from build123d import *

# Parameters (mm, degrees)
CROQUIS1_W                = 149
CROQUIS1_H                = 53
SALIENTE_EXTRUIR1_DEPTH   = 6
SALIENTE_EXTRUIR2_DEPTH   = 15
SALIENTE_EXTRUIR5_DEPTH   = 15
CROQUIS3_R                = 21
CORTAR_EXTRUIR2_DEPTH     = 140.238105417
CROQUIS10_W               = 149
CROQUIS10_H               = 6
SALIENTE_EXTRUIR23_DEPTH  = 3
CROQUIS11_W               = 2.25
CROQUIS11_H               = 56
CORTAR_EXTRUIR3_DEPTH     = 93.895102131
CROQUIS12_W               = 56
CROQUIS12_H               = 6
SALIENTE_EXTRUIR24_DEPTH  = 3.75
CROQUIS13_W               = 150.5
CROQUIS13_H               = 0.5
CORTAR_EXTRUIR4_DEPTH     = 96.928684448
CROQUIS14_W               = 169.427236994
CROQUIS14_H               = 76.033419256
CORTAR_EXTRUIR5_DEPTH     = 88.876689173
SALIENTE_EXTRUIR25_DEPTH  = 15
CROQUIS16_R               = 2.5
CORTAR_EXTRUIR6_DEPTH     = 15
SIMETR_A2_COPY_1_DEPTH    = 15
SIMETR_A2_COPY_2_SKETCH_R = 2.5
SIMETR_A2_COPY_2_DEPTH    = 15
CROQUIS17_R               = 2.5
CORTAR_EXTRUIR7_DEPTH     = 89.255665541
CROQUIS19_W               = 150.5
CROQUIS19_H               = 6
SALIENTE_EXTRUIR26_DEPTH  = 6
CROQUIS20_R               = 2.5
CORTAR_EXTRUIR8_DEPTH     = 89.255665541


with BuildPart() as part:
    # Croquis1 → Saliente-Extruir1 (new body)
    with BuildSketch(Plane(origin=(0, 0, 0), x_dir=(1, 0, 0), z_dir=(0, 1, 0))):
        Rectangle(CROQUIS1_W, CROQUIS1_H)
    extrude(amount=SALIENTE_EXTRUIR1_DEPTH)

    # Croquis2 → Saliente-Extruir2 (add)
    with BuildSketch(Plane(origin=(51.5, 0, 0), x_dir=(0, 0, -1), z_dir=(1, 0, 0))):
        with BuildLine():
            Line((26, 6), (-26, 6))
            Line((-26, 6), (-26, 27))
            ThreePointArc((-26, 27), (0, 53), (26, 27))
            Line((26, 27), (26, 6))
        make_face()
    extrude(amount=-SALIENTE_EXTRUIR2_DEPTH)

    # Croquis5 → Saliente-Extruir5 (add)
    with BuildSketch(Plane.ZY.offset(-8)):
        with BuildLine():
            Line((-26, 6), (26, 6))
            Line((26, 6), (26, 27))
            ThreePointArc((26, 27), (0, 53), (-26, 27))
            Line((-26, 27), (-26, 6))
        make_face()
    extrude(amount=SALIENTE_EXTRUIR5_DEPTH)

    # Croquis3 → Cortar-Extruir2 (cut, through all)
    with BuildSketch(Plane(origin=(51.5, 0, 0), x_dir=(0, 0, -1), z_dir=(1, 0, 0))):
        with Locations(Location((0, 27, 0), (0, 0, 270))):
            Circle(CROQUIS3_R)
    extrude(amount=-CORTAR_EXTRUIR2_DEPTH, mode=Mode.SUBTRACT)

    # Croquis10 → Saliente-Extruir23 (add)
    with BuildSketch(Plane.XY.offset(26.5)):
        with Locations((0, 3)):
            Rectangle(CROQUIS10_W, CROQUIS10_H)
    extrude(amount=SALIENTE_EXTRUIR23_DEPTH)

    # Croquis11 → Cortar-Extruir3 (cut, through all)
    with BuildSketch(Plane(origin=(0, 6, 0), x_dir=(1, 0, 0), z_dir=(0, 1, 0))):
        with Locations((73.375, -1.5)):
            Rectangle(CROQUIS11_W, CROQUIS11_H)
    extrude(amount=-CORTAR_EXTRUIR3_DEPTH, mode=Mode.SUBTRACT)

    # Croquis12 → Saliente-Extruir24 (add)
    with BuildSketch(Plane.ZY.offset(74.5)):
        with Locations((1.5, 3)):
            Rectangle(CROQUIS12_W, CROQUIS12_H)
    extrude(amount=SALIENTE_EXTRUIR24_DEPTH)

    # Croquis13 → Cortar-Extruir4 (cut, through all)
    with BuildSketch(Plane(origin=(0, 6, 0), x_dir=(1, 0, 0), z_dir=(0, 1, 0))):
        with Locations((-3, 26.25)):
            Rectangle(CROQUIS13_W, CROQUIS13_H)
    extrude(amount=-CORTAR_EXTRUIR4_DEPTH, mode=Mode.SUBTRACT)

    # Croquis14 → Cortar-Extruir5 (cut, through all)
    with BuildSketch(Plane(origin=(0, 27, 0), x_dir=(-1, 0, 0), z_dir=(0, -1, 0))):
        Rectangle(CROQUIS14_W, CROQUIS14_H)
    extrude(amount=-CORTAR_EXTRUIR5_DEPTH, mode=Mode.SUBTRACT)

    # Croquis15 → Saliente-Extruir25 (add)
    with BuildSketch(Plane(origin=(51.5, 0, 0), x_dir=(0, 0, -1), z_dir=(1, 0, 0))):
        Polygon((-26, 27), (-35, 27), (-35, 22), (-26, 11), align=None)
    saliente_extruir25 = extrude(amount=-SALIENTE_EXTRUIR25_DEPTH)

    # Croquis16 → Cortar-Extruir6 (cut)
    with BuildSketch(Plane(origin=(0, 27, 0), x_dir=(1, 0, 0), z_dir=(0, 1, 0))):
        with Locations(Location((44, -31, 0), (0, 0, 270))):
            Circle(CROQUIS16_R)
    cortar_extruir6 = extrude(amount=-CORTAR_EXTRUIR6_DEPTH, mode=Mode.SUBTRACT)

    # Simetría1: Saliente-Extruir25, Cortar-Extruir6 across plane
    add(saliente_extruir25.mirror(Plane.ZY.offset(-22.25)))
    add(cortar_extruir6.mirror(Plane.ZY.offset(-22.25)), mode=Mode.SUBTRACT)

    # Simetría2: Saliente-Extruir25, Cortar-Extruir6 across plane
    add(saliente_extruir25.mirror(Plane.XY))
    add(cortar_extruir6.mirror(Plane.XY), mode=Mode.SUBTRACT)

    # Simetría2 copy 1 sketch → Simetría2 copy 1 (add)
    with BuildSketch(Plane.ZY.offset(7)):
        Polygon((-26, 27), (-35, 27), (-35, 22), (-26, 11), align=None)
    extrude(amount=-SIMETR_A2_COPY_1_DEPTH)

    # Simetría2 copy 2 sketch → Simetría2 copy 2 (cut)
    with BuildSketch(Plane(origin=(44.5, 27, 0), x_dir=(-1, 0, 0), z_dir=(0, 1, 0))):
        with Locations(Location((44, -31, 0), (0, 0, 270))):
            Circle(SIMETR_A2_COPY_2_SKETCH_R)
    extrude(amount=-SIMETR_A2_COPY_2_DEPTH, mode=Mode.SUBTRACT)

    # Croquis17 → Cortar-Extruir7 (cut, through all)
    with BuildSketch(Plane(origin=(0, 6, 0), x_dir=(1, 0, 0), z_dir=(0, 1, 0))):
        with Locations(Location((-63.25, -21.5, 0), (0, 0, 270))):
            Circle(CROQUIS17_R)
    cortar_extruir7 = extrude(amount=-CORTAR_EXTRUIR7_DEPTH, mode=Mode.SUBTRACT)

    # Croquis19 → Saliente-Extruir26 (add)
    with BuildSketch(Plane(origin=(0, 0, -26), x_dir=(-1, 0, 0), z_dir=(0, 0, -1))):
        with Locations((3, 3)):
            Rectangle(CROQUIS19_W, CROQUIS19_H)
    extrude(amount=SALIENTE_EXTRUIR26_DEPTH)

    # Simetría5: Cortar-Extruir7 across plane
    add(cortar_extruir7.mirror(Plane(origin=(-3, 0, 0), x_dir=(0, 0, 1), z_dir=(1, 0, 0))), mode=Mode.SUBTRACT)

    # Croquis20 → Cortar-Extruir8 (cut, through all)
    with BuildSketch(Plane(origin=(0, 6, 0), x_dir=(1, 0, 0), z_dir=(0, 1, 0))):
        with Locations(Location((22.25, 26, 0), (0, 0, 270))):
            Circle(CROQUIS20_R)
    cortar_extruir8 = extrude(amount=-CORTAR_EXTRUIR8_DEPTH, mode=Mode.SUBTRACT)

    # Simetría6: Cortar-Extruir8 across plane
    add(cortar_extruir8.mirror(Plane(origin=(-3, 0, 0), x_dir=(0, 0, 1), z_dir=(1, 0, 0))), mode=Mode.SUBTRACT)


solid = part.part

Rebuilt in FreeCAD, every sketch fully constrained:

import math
import FreeCAD as App
import Part
import Sketcher
from FreeCAD import Vector
Q = App.Units.Quantity

doc = App.newDocument("Part")
params = doc.addObject("Spreadsheet::Sheet", "Params")
for row, (alias, value) in enumerate([
    ("sketch1_width", "149 mm"),
    ("sketch1_height", "53 mm"),
    ("pad1_length", "6 mm"),
    ("sketch2_radius", "26 mm"),
    ("sketch2_width", "21 mm"),
    ("pad2_length", "15 mm"),
    ("sketch3_radius", "26 mm"),
    ("sketch3_width", "21 mm"),
    ("pad3_length", "15 mm"),
    ("sketch4_diameter", "42 mm"),
    ("sketch5_width", "149 mm"),
    ("sketch5_height", "6 mm"),
    ("pad4_length", "3 mm"),
    ("sketch6_height", "56 mm"),
    ("sketch6_width", "2.25 mm"),
    ("sketch7_width", "6 mm"),
    ("sketch7_height", "56 mm"),
    ("pad5_length", "3.75 mm"),
    ("sketch8_width", "150.5 mm"),
    ("sketch8_height", "0.5 mm"),
    ("sketch10_width", "5 mm"),
    ("sketch10_width2", "16 mm"),
    ("sketch10_height", "9 mm"),
    ("pad6_length", "15 mm"),
    ("sketch11_diameter", "5 mm"),
    ("pocket5_length", "15 mm"),
    ("sketch12_width", "5 mm"),
    ("sketch12_width2", "16 mm"),
    ("sketch12_height", "9 mm"),
    ("pad7_length", "15 mm"),
    ("sketch13_diameter", "5 mm"),
    ("pocket6_length", "15 mm"),
    ("sketch14_diameter", "5 mm"),
    ("sketch15_height", "6 mm"),
    ("sketch15_width", "150.5 mm"),
    ("pad8_length", "6 mm"),
    ("sketch16_diameter", "5 mm"),
], start=1):
    params.set(f"A{row}", alias)
    params.set(f"B{row}", "=" + value)
    params.setAlias(f"B{row}", alias)

body = doc.addObject("PartDesign::Body", "Body")

# Sketch on XZ plane
sketch1 = doc.addObject("Sketcher::SketchObject", "Sketch")
body.addObject(sketch1)
sketch1.AttachmentSupport = (doc.XZ_Plane, [""])
sketch1.MapMode = "FlatFace"
sketch1.addGeometry(Part.LineSegment(Vector(-74, -26, 0), Vector(-74, 26, 0)), False)
sketch1.addGeometry(Part.LineSegment(Vector(-74, 26, 0), Vector(74, 26, 0)), False)
sketch1.addGeometry(Part.LineSegment(Vector(74, 26, 0), Vector(74, -26, 0)), False)
sketch1.addGeometry(Part.LineSegment(Vector(74, -26, 0), Vector(-74, -26, 0)), False)
sketch1.addConstraint(Sketcher.Constraint("Coincident", 0, 2, 1, 1))
sketch1.addConstraint(Sketcher.Constraint("Coincident", 1, 2, 2, 1))
sketch1.addConstraint(Sketcher.Constraint("Coincident", 2, 2, 3, 1))
sketch1.addConstraint(Sketcher.Constraint("Coincident", 3, 2, 0, 1))
sketch1.addConstraint(Sketcher.Constraint("Vertical", 0))
sketch1.addConstraint(Sketcher.Constraint("Horizontal", 1))
sketch1.addConstraint(Sketcher.Constraint("Vertical", 2))
sketch1.addConstraint(Sketcher.Constraint("Horizontal", 3))
sketch1.addConstraint(Sketcher.Constraint("Symmetric", 0, 2, 2, 2, -1, 1))
sketch1.addConstraint(Sketcher.Constraint("DistanceX", 1, 1, 1, 2, Q("149 mm")))
sketch1.addConstraint(Sketcher.Constraint("DistanceY", 0, 1, 0, 2, Q("53 mm")))
sketch1.setExpression("Constraints[9]", "Params.sketch1_width")
sketch1.setExpression("Constraints[10]", "Params.sketch1_height")
pad1 = doc.addObject("PartDesign::Pad", "Pad")
body.addObject(pad1)
pad1.Profile = sketch1
pad1.setExpression("Length", "Params.pad1_length")
pad1.Reversed = True

# Sketch on YZ plane
sketch2 = doc.addObject("Sketcher::SketchObject", "Sketch001")
body.addObject(sketch2)
sketch2.AttachmentSupport = (doc.YZ_Plane, [""])
sketch2.MapMode = "FlatFace"
sketch2.AttachmentOffset = App.Placement(Vector(0, 0, 51.5), App.Rotation())
sketch2.addGeometry(Part.LineSegment(Vector(6, 26, 0), Vector(6, -26, 0)), False)
sketch2.addGeometry(Part.LineSegment(Vector(6, -26, 0), Vector(27, -26, 0)), False)
sketch2.addGeometry(Part.ArcOfCircle(Part.Circle(Vector(27, 0, 0), Vector(0, 0, 1), 26), math.radians(-90), math.radians(90)), False)
sketch2.addGeometry(Part.LineSegment(Vector(27, 26, 0), Vector(6, 26, 0)), False)
sketch2.addConstraint(Sketcher.Constraint("Coincident", 0, 2, 1, 1))
sketch2.addConstraint(Sketcher.Constraint("Tangent", 1, 2, 2, 1))
sketch2.addConstraint(Sketcher.Constraint("Tangent", 2, 2, 3, 1))
sketch2.addConstraint(Sketcher.Constraint("Coincident", 3, 2, 0, 1))
sketch2.addConstraint(Sketcher.Constraint("Vertical", 0))
sketch2.addConstraint(Sketcher.Constraint("Horizontal", 1))
sketch2.addConstraint(Sketcher.Constraint("Horizontal", 3))
sketch2.addConstraint(Sketcher.Constraint("PointOnObject", 2, 3, -1))
sketch2.addConstraint(Sketcher.Constraint("Radius", 2, Q("26 mm")))
sketch2.addConstraint(Sketcher.Constraint("DistanceX", 1, 1, 1, 2, Q("21 mm")))
sketch2.addConstraint(Sketcher.Constraint("DistanceX", -1, 1, 2, 3, Q("27 mm")))
sketch2.setExpression("Constraints[8]", "Params.sketch2_radius")
sketch2.setExpression("Constraints[9]", "Params.sketch2_width")
pad2 = doc.addObject("PartDesign::Pad", "Pad001")
body.addObject(pad2)
pad2.Profile = sketch2
pad2.setExpression("Length", "Params.pad2_length")
pad2.Reversed = True

# Sketch on YZ plane
sketch3 = doc.addObject("Sketcher::SketchObject", "Sketch002")
body.addObject(sketch3)
sketch3.AttachmentSupport = (doc.YZ_Plane, [""])
sketch3.MapMode = "FlatFace"
sketch3.AttachmentOffset = App.Placement(Vector(0, 0, 8), App.Rotation())
sketch3.addGeometry(Part.LineSegment(Vector(6, -26, 0), Vector(6, 26, 0)), False)
sketch3.addGeometry(Part.LineSegment(Vector(6, 26, 0), Vector(27, 26, 0)), False)
sketch3.addGeometry(Part.ArcOfCircle(Part.Circle(Vector(27, 0, 0), Vector(0, 0, 1), 26), math.radians(-90), math.radians(90)), False)
sketch3.addGeometry(Part.LineSegment(Vector(27, -26, 0), Vector(6, -26, 0)), False)
sketch3.addConstraint(Sketcher.Constraint("Coincident", 0, 2, 1, 1))
sketch3.addConstraint(Sketcher.Constraint("Tangent", 1, 2, 2, 2))
sketch3.addConstraint(Sketcher.Constraint("Tangent", 2, 1, 3, 1))
sketch3.addConstraint(Sketcher.Constraint("Coincident", 3, 2, 0, 1))
sketch3.addConstraint(Sketcher.Constraint("Vertical", 0))
sketch3.addConstraint(Sketcher.Constraint("Horizontal", 1))
sketch3.addConstraint(Sketcher.Constraint("Horizontal", 3))
sketch3.addConstraint(Sketcher.Constraint("PointOnObject", 2, 3, -1))
sketch3.addConstraint(Sketcher.Constraint("Radius", 2, Q("26 mm")))
sketch3.addConstraint(Sketcher.Constraint("DistanceX", 1, 1, 1, 2, Q("21 mm")))
sketch3.addConstraint(Sketcher.Constraint("DistanceX", -1, 1, 2, 3, Q("27 mm")))
sketch3.setExpression("Constraints[8]", "Params.sketch3_radius")
sketch3.setExpression("Constraints[9]", "Params.sketch3_width")
pad3 = doc.addObject("PartDesign::Pad", "Pad002")
body.addObject(pad3)
pad3.Profile = sketch3
pad3.setExpression("Length", "Params.pad3_length")
pad3.Reversed = True

# Sketch on YZ plane
sketch4 = doc.addObject("Sketcher::SketchObject", "Sketch003")
body.addObject(sketch4)
sketch4.AttachmentSupport = (doc.YZ_Plane, [""])
sketch4.MapMode = "FlatFace"
sketch4.AttachmentOffset = App.Placement(Vector(0, 0, 51.5), App.Rotation())
sketch4.addGeometry(Part.Circle(Vector(27, 0, 0), Vector(0, 0, 1), 21), False)
sketch4.addConstraint(Sketcher.Constraint("PointOnObject", 0, 3, -1))
sketch4.addConstraint(Sketcher.Constraint("Diameter", 0, Q("42 mm")))
sketch4.addConstraint(Sketcher.Constraint("DistanceX", -1, 1, 0, 3, Q("27 mm")))
sketch4.setExpression("Constraints[1]", "Params.sketch4_diameter")
pocket1 = doc.addObject("PartDesign::Pocket", "Pocket")
body.addObject(pocket1)
pocket1.Profile = sketch4
pocket1.Type = "ThroughAll"

# Sketch on XY plane
sketch5 = doc.addObject("Sketcher::SketchObject", "Sketch004")
body.addObject(sketch5)
sketch5.AttachmentSupport = (doc.XY_Plane, [""])
sketch5.MapMode = "FlatFace"
sketch5.AttachmentOffset = App.Placement(Vector(0, 0, 26.5), App.Rotation())
sketch5.addGeometry(Part.LineSegment(Vector(-74, 6, 0), Vector(-74, 0, 0)), False)
sketch5.addGeometry(Part.LineSegment(Vector(-74, 0, 0), Vector(74, 0, 0)), False)
sketch5.addGeometry(Part.LineSegment(Vector(74, 0, 0), Vector(74, 6, 0)), False)
sketch5.addGeometry(Part.LineSegment(Vector(74, 6, 0), Vector(-74, 6, 0)), False)
sketch5.addConstraint(Sketcher.Constraint("Coincident", 0, 2, 1, 1))
sketch5.addConstraint(Sketcher.Constraint("Coincident", 1, 2, 2, 1))
sketch5.addConstraint(Sketcher.Constraint("Coincident", 2, 2, 3, 1))
sketch5.addConstraint(Sketcher.Constraint("Coincident", 3, 2, 0, 1))
sketch5.addConstraint(Sketcher.Constraint("Vertical", 0))
sketch5.addConstraint(Sketcher.Constraint("Horizontal", 1))
sketch5.addConstraint(Sketcher.Constraint("Vertical", 2))
sketch5.addConstraint(Sketcher.Constraint("Horizontal", 3))
sketch5.addConstraint(Sketcher.Constraint("Symmetric", 0, 2, 1, 2, -1, 1))
sketch5.addConstraint(Sketcher.Constraint("DistanceX", 1, 1, 1, 2, Q("149 mm")))
sketch5.addConstraint(Sketcher.Constraint("DistanceY", 0, 2, 0, 1, Q("6 mm")))
sketch5.setExpression("Constraints[9]", "Params.sketch5_width")
sketch5.setExpression("Constraints[10]", "Params.sketch5_height")
pad4 = doc.addObject("PartDesign::Pad", "Pad003")
body.addObject(pad4)
pad4.Profile = sketch5
pad4.setExpression("Length", "Params.pad4_length")

# Sketch on XZ plane
sketch6 = doc.addObject("Sketcher::SketchObject", "Sketch005")
body.addObject(sketch6)
sketch6.AttachmentSupport = (doc.XZ_Plane, [""])
sketch6.MapMode = "FlatFace"
sketch6.AttachmentOffset = App.Placement(Vector(0, 0, -6), App.Rotation())
sketch6.addGeometry(Part.LineSegment(Vector(72.2, -26.5, 0), Vector(72.2, 29.5, 0)), False)
sketch6.addGeometry(Part.LineSegment(Vector(72.2, 29.5, 0), Vector(74.5, 29.5, 0)), False)
sketch6.addGeometry(Part.LineSegment(Vector(74.5, 29.5, 0), Vector(74.5, -26.5, 0)), False)
sketch6.addGeometry(Part.LineSegment(Vector(74.5, -26.5, 0), Vector(72.2, -26.5, 0)), False)
sketch6.addConstraint(Sketcher.Constraint("Coincident", 0, 2, 1, 1))
sketch6.addConstraint(Sketcher.Constraint("Coincident", 1, 2, 2, 1))
sketch6.addConstraint(Sketcher.Constraint("Coincident", 2, 2, 3, 1))
sketch6.addConstraint(Sketcher.Constraint("Coincident", 3, 2, 0, 1))
sketch6.addConstraint(Sketcher.Constraint("Vertical", 0))
sketch6.addConstraint(Sketcher.Constraint("Horizontal", 1))
sketch6.addConstraint(Sketcher.Constraint("Vertical", 2))
sketch6.addConstraint(Sketcher.Constraint("Horizontal", 3))
sketch6.addConstraint(Sketcher.Constraint("DistanceY", 0, 1, 0, 2, Q("56 mm")))
sketch6.addConstraint(Sketcher.Constraint("DistanceX", 1, 1, 1, 2, Q("2.25 mm")))
sketch6.addConstraint(Sketcher.Constraint("DistanceY", -1, 1, 0, 2, Q("29.5 mm")))
sketch6.addConstraint(Sketcher.Constraint("DistanceX", -1, 1, 1, 2, Q("74.5 mm")))
sketch6.setExpression("Constraints[8]", "Params.sketch6_height")
sketch6.setExpression("Constraints[9]", "Params.sketch6_width")
pocket2 = doc.addObject("PartDesign::Pocket", "Pocket001")
body.addObject(pocket2)
pocket2.Profile = sketch6
pocket2.Type = "ThroughAll"
pocket2.Reversed = True

# Sketch on YZ plane
sketch7 = doc.addObject("Sketcher::SketchObject", "Sketch006")
body.addObject(sketch7)
sketch7.AttachmentSupport = (doc.YZ_Plane, [""])
sketch7.MapMode = "FlatFace"
sketch7.AttachmentOffset = App.Placement(Vector(0, 0, -74.5), App.Rotation())
sketch7.addGeometry(Part.LineSegment(Vector(6, -26, 0), Vector(0, -26, 0)), False)
sketch7.addGeometry(Part.LineSegment(Vector(0, -26, 0), Vector(0, 30, 0)), False)
sketch7.addGeometry(Part.LineSegment(Vector(0, 30, 0), Vector(6, 30, 0)), False)
sketch7.addGeometry(Part.LineSegment(Vector(6, 30, 0), Vector(6, -26, 0)), False)
sketch7.addConstraint(Sketcher.Constraint("Coincident", 0, 2, 1, 1))
sketch7.addConstraint(Sketcher.Constraint("Coincident", 1, 2, 2, 1))
sketch7.addConstraint(Sketcher.Constraint("Coincident", 2, 2, 3, 1))
sketch7.addConstraint(Sketcher.Constraint("Coincident", 3, 2, 0, 1))
sketch7.addConstraint(Sketcher.Constraint("Horizontal", 0))
sketch7.addConstraint(Sketcher.Constraint("Vertical", 1))
sketch7.addConstraint(Sketcher.Constraint("Horizontal", 2))
sketch7.addConstraint(Sketcher.Constraint("Vertical", 3))
sketch7.addConstraint(Sketcher.Constraint("PointOnObject", 0, 2, -2))
sketch7.addConstraint(Sketcher.Constraint("DistanceX", 0, 2, 0, 1, Q("6 mm")))
sketch7.addConstraint(Sketcher.Constraint("DistanceY", 1, 1, 1, 2, Q("56 mm")))
sketch7.addConstraint(Sketcher.Constraint("DistanceY", 0, 2, -1, 1, Q("26.5 mm")))
sketch7.setExpression("Constraints[9]", "Params.sketch7_width")
sketch7.setExpression("Constraints[10]", "Params.sketch7_height")
pad5 = doc.addObject("PartDesign::Pad", "Pad004")
body.addObject(pad5)
pad5.Profile = sketch7
pad5.setExpression("Length", "Params.pad5_length")
pad5.Reversed = True

# Sketch on XZ plane
sketch8 = doc.addObject("Sketcher::SketchObject", "Sketch007")
body.addObject(sketch8)
sketch8.AttachmentSupport = (doc.XZ_Plane, [""])
sketch8.MapMode = "FlatFace"
sketch8.AttachmentOffset = App.Placement(Vector(0, 0, -6), App.Rotation())
sketch8.addGeometry(Part.LineSegment(Vector(-78.2, -26.5, 0), Vector(-78.2, -26, 0)), False)
sketch8.addGeometry(Part.LineSegment(Vector(-78.2, -26, 0), Vector(72.2, -26, 0)), False)
sketch8.addGeometry(Part.LineSegment(Vector(72.2, -26, 0), Vector(72.2, -26.5, 0)), False)
sketch8.addGeometry(Part.LineSegment(Vector(72.2, -26.5, 0), Vector(-78.2, -26.5, 0)), False)
sketch8.addConstraint(Sketcher.Constraint("Coincident", 0, 2, 1, 1))
sketch8.addConstraint(Sketcher.Constraint("Coincident", 1, 2, 2, 1))
sketch8.addConstraint(Sketcher.Constraint("Coincident", 2, 2, 3, 1))
sketch8.addConstraint(Sketcher.Constraint("Coincident", 3, 2, 0, 1))
sketch8.addConstraint(Sketcher.Constraint("Vertical", 0))
sketch8.addConstraint(Sketcher.Constraint("Horizontal", 1))
sketch8.addConstraint(Sketcher.Constraint("Vertical", 2))
sketch8.addConstraint(Sketcher.Constraint("Horizontal", 3))
sketch8.addConstraint(Sketcher.Constraint("DistanceX", 1, 1, 1, 2, Q("150.5 mm")))
sketch8.addConstraint(Sketcher.Constraint("DistanceY", 0, 1, 0, 2, Q("0.5 mm")))
sketch8.addConstraint(Sketcher.Constraint("DistanceY", 0, 2, -1, 1, Q("26 mm")))
sketch8.addConstraint(Sketcher.Constraint("DistanceX", 0, 2, -1, 1, Q("78.25 mm")))
sketch8.setExpression("Constraints[8]", "Params.sketch8_width")
sketch8.setExpression("Constraints[9]", "Params.sketch8_height")
pocket3 = doc.addObject("PartDesign::Pocket", "Pocket002")
body.addObject(pocket3)
pocket3.Profile = sketch8
pocket3.Type = "ThroughAll"
pocket3.Reversed = True

# Sketch on XZ plane
sketch9 = doc.addObject("Sketcher::SketchObject", "Sketch008")
body.addObject(sketch9)
sketch9.AttachmentSupport = (doc.XZ_Plane, [""])
sketch9.MapMode = "FlatFace"
sketch9.AttachmentOffset = App.Placement(Vector(0, 0, -27), App.Rotation())
sketch9.addGeometry(Part.LineSegment(Vector(85, -38, 0), Vector(85, 38, 0)), False)
sketch9.addGeometry(Part.LineSegment(Vector(85, 38, 0), Vector(-85, 38, 0)), False)
sketch9.addGeometry(Part.LineSegment(Vector(-85, 38, 0), Vector(-85, -38, 0)), False)
sketch9.addGeometry(Part.LineSegment(Vector(-85, -38, 0), Vector(85, -38, 0)), False)
sketch9.addConstraint(Sketcher.Constraint("Coincident", 0, 2, 1, 1))
sketch9.addConstraint(Sketcher.Constraint("Coincident", 1, 2, 2, 1))
sketch9.addConstraint(Sketcher.Constraint("Coincident", 2, 2, 3, 1))
sketch9.addConstraint(Sketcher.Constraint("Coincident", 3, 2, 0, 1))
sketch9.addConstraint(Sketcher.Constraint("Vertical", 0))
sketch9.addConstraint(Sketcher.Constraint("Horizontal", 1))
sketch9.addConstraint(Sketcher.Constraint("Vertical", 2))
sketch9.addConstraint(Sketcher.Constraint("Horizontal", 3))
sketch9.addConstraint(Sketcher.Constraint("Symmetric", 0, 2, 2, 2, -1, 1))
sketch9.addConstraint(Sketcher.Constraint("DistanceY", 0, 1, 0, 2, Q("76.033419 mm")))
sketch9.addConstraint(Sketcher.Constraint("DistanceX", 1, 2, 1, 1, Q("169.427237 mm")))
pocket4 = doc.addObject("PartDesign::Pocket", "Pocket003")
body.addObject(pocket4)
pocket4.Profile = sketch9
pocket4.Type = "ThroughAll"

# Sketch on YZ plane
sketch10 = doc.addObject("Sketcher::SketchObject", "Sketch009")
body.addObject(sketch10)
sketch10.AttachmentSupport = (doc.YZ_Plane, [""])
sketch10.MapMode = "FlatFace"
sketch10.AttachmentOffset = App.Placement(Vector(0, 0, 51.5), App.Rotation())
sketch10.addGeometry(Part.LineSegment(Vector(27, 26, 0), Vector(27, 35, 0)), False)
sketch10.addGeometry(Part.LineSegment(Vector(27, 35, 0), Vector(22, 35, 0)), False)
sketch10.addGeometry(Part.LineSegment(Vector(22, 35, 0), Vector(11, 26, 0)), False)
sketch10.addGeometry(Part.LineSegment(Vector(11, 26, 0), Vector(27, 26, 0)), False)
sketch10.addConstraint(Sketcher.Constraint("Coincident", 0, 2, 1, 1))
sketch10.addConstraint(Sketcher.Constraint("Coincident", 1, 2, 2, 1))
sketch10.addConstraint(Sketcher.Constraint("Coincident", 2, 2, 3, 1))
sketch10.addConstraint(Sketcher.Constraint("Coincident", 3, 2, 0, 1))
sketch10.addConstraint(Sketcher.Constraint("Vertical", 0))
sketch10.addConstraint(Sketcher.Constraint("Horizontal", 1))
sketch10.addConstraint(Sketcher.Constraint("Horizontal", 3))
sketch10.addConstraint(Sketcher.Constraint("DistanceX", 1, 2, 1, 1, Q("5 mm")))
sketch10.addConstraint(Sketcher.Constraint("DistanceX", 3, 1, 3, 2, Q("16 mm")))
sketch10.addConstraint(Sketcher.Constraint("DistanceY", 0, 1, 0, 2, Q("9 mm")))
sketch10.addConstraint(Sketcher.Constraint("DistanceX", -1, 1, 0, 2, Q("27 mm")))
sketch10.addConstraint(Sketcher.Constraint("DistanceY", -1, 1, 0, 2, Q("35 mm")))
sketch10.setExpression("Constraints[7]", "Params.sketch10_width")
sketch10.setExpression("Constraints[8]", "Params.sketch10_width2")
sketch10.setExpression("Constraints[9]", "Params.sketch10_height")
pad6 = doc.addObject("PartDesign::Pad", "Pad005")
body.addObject(pad6)
pad6.Profile = sketch10
pad6.setExpression("Length", "Params.pad6_length")
pad6.Reversed = True

# Sketch on XZ plane
sketch11 = doc.addObject("Sketcher::SketchObject", "Sketch010")
body.addObject(sketch11)
sketch11.AttachmentSupport = (doc.XZ_Plane, [""])
sketch11.MapMode = "FlatFace"
sketch11.AttachmentOffset = App.Placement(Vector(0, 0, -27), App.Rotation())
sketch11.addGeometry(Part.Circle(Vector(44, 31, 0), Vector(0, 0, 1), 2.5), False)
sketch11.addConstraint(Sketcher.Constraint("Diameter", 0, Q("5 mm")))
sketch11.addConstraint(Sketcher.Constraint("DistanceX", -1, 1, 0, 3, Q("44 mm")))
sketch11.addConstraint(Sketcher.Constraint("DistanceY", -1, 1, 0, 3, Q("31 mm")))
sketch11.setExpression("Constraints[0]", "Params.sketch11_diameter")
pocket5 = doc.addObject("PartDesign::Pocket", "Pocket004")
body.addObject(pocket5)
pocket5.Profile = sketch11
pocket5.setExpression("Length", "Params.pocket5_length")
pocket5.Reversed = True
doc.recompute()

datumplane = doc.addObject("PartDesign::Plane", "DatumPlane")
body.addObject(datumplane)
datumplane.AttachmentSupport = (doc.YZ_Plane, [""])
datumplane.MapMode = "FlatFace"
datumplane.AttachmentOffset = App.Placement(Vector(0, 0, 22.25), App.Rotation())
mirrored = doc.addObject("PartDesign::Mirrored", "Mirrored")
body.addObject(mirrored)
mirrored.Originals = [pad6, pocket5]
mirrored.MirrorPlane = (datumplane, [""])
body.Tip = mirrored
doc.recompute()

mirrored2 = doc.addObject("PartDesign::Mirrored", "Mirrored001")
body.addObject(mirrored2)
mirrored2.Originals = [pad6, pocket5]
mirrored2.MirrorPlane = (doc.XY_Plane, [""])
body.Tip = mirrored2

# Sketch on YZ plane
sketch12 = doc.addObject("Sketcher::SketchObject", "Sketch011")
body.addObject(sketch12)
sketch12.AttachmentSupport = (doc.YZ_Plane, [""])
sketch12.MapMode = "FlatFace"
sketch12.AttachmentOffset = App.Placement(Vector(0, 0, -7), App.Rotation())
sketch12.addGeometry(Part.LineSegment(Vector(27, -26, 0), Vector(27, -35, 0)), False)
sketch12.addGeometry(Part.LineSegment(Vector(27, -35, 0), Vector(22, -35, 0)), False)
sketch12.addGeometry(Part.LineSegment(Vector(22, -35, 0), Vector(11, -26, 0)), False)
sketch12.addGeometry(Part.LineSegment(Vector(11, -26, 0), Vector(27, -26, 0)), False)
sketch12.addConstraint(Sketcher.Constraint("Coincident", 0, 2, 1, 1))
sketch12.addConstraint(Sketcher.Constraint("Coincident", 1, 2, 2, 1))
sketch12.addConstraint(Sketcher.Constraint("Coincident", 2, 2, 3, 1))
sketch12.addConstraint(Sketcher.Constraint("Coincident", 3, 2, 0, 1))
sketch12.addConstraint(Sketcher.Constraint("Vertical", 0))
sketch12.addConstraint(Sketcher.Constraint("Horizontal", 1))
sketch12.addConstraint(Sketcher.Constraint("Horizontal", 3))
sketch12.addConstraint(Sketcher.Constraint("DistanceX", 1, 2, 1, 1, Q("5 mm")))
sketch12.addConstraint(Sketcher.Constraint("DistanceX", 3, 1, 3, 2, Q("16 mm")))
sketch12.addConstraint(Sketcher.Constraint("DistanceY", 0, 2, 0, 1, Q("9 mm")))
sketch12.addConstraint(Sketcher.Constraint("DistanceX", -1, 1, 0, 2, Q("27 mm")))
sketch12.addConstraint(Sketcher.Constraint("DistanceY", 0, 2, -1, 1, Q("35 mm")))
sketch12.setExpression("Constraints[7]", "Params.sketch12_width")
sketch12.setExpression("Constraints[8]", "Params.sketch12_width2")
sketch12.setExpression("Constraints[9]", "Params.sketch12_height")
pad7 = doc.addObject("PartDesign::Pad", "Pad006")
body.addObject(pad7)
pad7.Profile = sketch12
pad7.setExpression("Length", "Params.pad7_length")

# Sketch on XZ plane
sketch13 = doc.addObject("Sketcher::SketchObject", "Sketch012")
body.addObject(sketch13)
sketch13.AttachmentSupport = (doc.XZ_Plane, [""])
sketch13.MapMode = "FlatFace"
sketch13.AttachmentOffset = App.Placement(Vector(0, 0, -27), App.Rotation())
sketch13.addGeometry(Part.Circle(Vector(0.5, -31, 0), Vector(0, 0, 1), 2.5), False)
sketch13.addConstraint(Sketcher.Constraint("Diameter", 0, Q("5 mm")))
sketch13.addConstraint(Sketcher.Constraint("DistanceY", 0, 3, -1, 1, Q("31 mm")))
sketch13.addConstraint(Sketcher.Constraint("DistanceX", -1, 1, 0, 3, Q("0.5 mm")))
sketch13.setExpression("Constraints[0]", "Params.sketch13_diameter")
pocket6 = doc.addObject("PartDesign::Pocket", "Pocket005")
body.addObject(pocket6)
pocket6.Profile = sketch13
pocket6.setExpression("Length", "Params.pocket6_length")
pocket6.Reversed = True

# Sketch on XZ plane
sketch14 = doc.addObject("Sketcher::SketchObject", "Sketch013")
body.addObject(sketch14)
sketch14.AttachmentSupport = (doc.XZ_Plane, [""])
sketch14.MapMode = "FlatFace"
sketch14.AttachmentOffset = App.Placement(Vector(0, 0, -6), App.Rotation())
sketch14.addGeometry(Part.Circle(Vector(-63.2, 21.5, 0), Vector(0, 0, 1), 2.5), False)
sketch14.addConstraint(Sketcher.Constraint("Diameter", 0, Q("5 mm")))
sketch14.addConstraint(Sketcher.Constraint("DistanceY", -1, 1, 0, 3, Q("21.5 mm")))
sketch14.addConstraint(Sketcher.Constraint("DistanceX", 0, 3, -1, 1, Q("63.25 mm")))
sketch14.setExpression("Constraints[0]", "Params.sketch14_diameter")
pocket7 = doc.addObject("PartDesign::Pocket", "Pocket006")
body.addObject(pocket7)
pocket7.Profile = sketch14
pocket7.Type = "ThroughAll"
pocket7.Reversed = True

# Sketch on XY plane
sketch15 = doc.addObject("Sketcher::SketchObject", "Sketch014")
body.addObject(sketch15)
sketch15.AttachmentSupport = (doc.XY_Plane, [""])
sketch15.MapMode = "FlatFace"
sketch15.AttachmentOffset = App.Placement(Vector(0, 0, -26), App.Rotation())
sketch15.addGeometry(Part.LineSegment(Vector(72, 6, 0), Vector(72, 0, 0)), False)
sketch15.addGeometry(Part.LineSegment(Vector(72, 0, 0), Vector(-78, 0, 0)), False)
sketch15.addGeometry(Part.LineSegment(Vector(-78, 0, 0), Vector(-78, 6, 0)), False)
sketch15.addGeometry(Part.LineSegment(Vector(-78, 6, 0), Vector(72, 6, 0)), False)
sketch15.addConstraint(Sketcher.Constraint("Coincident", 0, 2, 1, 1))
sketch15.addConstraint(Sketcher.Constraint("Coincident", 1, 2, 2, 1))
sketch15.addConstraint(Sketcher.Constraint("Coincident", 2, 2, 3, 1))
sketch15.addConstraint(Sketcher.Constraint("Coincident", 3, 2, 0, 1))
sketch15.addConstraint(Sketcher.Constraint("Vertical", 0))
sketch15.addConstraint(Sketcher.Constraint("Horizontal", 1))
sketch15.addConstraint(Sketcher.Constraint("Vertical", 2))
sketch15.addConstraint(Sketcher.Constraint("Horizontal", 3))
sketch15.addConstraint(Sketcher.Constraint("PointOnObject", 0, 2, -1))
sketch15.addConstraint(Sketcher.Constraint("DistanceY", 0, 2, 0, 1, Q("6 mm")))
sketch15.addConstraint(Sketcher.Constraint("DistanceX", 1, 2, 1, 1, Q("150.5 mm")))
sketch15.addConstraint(Sketcher.Constraint("DistanceX", -1, 1, 0, 2, Q("72.25 mm")))
sketch15.setExpression("Constraints[9]", "Params.sketch15_height")
sketch15.setExpression("Constraints[10]", "Params.sketch15_width")
pad8 = doc.addObject("PartDesign::Pad", "Pad007")
body.addObject(pad8)
pad8.Profile = sketch15
pad8.setExpression("Length", "Params.pad8_length")
pad8.Reversed = True
doc.recompute()

datumplane2 = doc.addObject("PartDesign::Plane", "DatumPlane001")
body.addObject(datumplane2)
datumplane2.AttachmentSupport = (doc.YZ_Plane, [""])
datumplane2.MapMode = "FlatFace"
datumplane2.AttachmentOffset = App.Placement(Vector(0, 0, -3), App.Rotation())
mirrored3 = doc.addObject("PartDesign::Mirrored", "Mirrored002")
body.addObject(mirrored3)
mirrored3.Originals = [pocket7]
mirrored3.MirrorPlane = (datumplane2, [""])
body.Tip = mirrored3

# Sketch on XZ plane
sketch16 = doc.addObject("Sketcher::SketchObject", "Sketch015")
body.addObject(sketch16)
sketch16.AttachmentSupport = (doc.XZ_Plane, [""])
sketch16.MapMode = "FlatFace"
sketch16.AttachmentOffset = App.Placement(Vector(0, 0, -6), App.Rotation())
sketch16.addGeometry(Part.Circle(Vector(22.2, -26, 0), Vector(0, 0, 1), 2.5), False)
sketch16.addConstraint(Sketcher.Constraint("Diameter", 0, Q("5 mm")))
sketch16.addConstraint(Sketcher.Constraint("DistanceY", 0, 3, -1, 1, Q("26 mm")))
sketch16.addConstraint(Sketcher.Constraint("DistanceX", -1, 1, 0, 3, Q("22.25 mm")))
sketch16.setExpression("Constraints[0]", "Params.sketch16_diameter")
pocket8 = doc.addObject("PartDesign::Pocket", "Pocket007")
body.addObject(pocket8)
pocket8.Profile = sketch16
pocket8.Type = "ThroughAll"
pocket8.Reversed = True
doc.recompute()

datumplane3 = doc.addObject("PartDesign::Plane", "DatumPlane002")
body.addObject(datumplane3)
datumplane3.AttachmentSupport = (doc.YZ_Plane, [""])
datumplane3.MapMode = "FlatFace"
datumplane3.AttachmentOffset = App.Placement(Vector(0, 0, -3), App.Rotation())
mirrored4 = doc.addObject("PartDesign::Mirrored", "Mirrored003")
body.addObject(mirrored4)
mirrored4.Originals = [pocket8]
mirrored4.MirrorPlane = (datumplane3, [""])
body.Tip = mirrored4

doc.recompute()
